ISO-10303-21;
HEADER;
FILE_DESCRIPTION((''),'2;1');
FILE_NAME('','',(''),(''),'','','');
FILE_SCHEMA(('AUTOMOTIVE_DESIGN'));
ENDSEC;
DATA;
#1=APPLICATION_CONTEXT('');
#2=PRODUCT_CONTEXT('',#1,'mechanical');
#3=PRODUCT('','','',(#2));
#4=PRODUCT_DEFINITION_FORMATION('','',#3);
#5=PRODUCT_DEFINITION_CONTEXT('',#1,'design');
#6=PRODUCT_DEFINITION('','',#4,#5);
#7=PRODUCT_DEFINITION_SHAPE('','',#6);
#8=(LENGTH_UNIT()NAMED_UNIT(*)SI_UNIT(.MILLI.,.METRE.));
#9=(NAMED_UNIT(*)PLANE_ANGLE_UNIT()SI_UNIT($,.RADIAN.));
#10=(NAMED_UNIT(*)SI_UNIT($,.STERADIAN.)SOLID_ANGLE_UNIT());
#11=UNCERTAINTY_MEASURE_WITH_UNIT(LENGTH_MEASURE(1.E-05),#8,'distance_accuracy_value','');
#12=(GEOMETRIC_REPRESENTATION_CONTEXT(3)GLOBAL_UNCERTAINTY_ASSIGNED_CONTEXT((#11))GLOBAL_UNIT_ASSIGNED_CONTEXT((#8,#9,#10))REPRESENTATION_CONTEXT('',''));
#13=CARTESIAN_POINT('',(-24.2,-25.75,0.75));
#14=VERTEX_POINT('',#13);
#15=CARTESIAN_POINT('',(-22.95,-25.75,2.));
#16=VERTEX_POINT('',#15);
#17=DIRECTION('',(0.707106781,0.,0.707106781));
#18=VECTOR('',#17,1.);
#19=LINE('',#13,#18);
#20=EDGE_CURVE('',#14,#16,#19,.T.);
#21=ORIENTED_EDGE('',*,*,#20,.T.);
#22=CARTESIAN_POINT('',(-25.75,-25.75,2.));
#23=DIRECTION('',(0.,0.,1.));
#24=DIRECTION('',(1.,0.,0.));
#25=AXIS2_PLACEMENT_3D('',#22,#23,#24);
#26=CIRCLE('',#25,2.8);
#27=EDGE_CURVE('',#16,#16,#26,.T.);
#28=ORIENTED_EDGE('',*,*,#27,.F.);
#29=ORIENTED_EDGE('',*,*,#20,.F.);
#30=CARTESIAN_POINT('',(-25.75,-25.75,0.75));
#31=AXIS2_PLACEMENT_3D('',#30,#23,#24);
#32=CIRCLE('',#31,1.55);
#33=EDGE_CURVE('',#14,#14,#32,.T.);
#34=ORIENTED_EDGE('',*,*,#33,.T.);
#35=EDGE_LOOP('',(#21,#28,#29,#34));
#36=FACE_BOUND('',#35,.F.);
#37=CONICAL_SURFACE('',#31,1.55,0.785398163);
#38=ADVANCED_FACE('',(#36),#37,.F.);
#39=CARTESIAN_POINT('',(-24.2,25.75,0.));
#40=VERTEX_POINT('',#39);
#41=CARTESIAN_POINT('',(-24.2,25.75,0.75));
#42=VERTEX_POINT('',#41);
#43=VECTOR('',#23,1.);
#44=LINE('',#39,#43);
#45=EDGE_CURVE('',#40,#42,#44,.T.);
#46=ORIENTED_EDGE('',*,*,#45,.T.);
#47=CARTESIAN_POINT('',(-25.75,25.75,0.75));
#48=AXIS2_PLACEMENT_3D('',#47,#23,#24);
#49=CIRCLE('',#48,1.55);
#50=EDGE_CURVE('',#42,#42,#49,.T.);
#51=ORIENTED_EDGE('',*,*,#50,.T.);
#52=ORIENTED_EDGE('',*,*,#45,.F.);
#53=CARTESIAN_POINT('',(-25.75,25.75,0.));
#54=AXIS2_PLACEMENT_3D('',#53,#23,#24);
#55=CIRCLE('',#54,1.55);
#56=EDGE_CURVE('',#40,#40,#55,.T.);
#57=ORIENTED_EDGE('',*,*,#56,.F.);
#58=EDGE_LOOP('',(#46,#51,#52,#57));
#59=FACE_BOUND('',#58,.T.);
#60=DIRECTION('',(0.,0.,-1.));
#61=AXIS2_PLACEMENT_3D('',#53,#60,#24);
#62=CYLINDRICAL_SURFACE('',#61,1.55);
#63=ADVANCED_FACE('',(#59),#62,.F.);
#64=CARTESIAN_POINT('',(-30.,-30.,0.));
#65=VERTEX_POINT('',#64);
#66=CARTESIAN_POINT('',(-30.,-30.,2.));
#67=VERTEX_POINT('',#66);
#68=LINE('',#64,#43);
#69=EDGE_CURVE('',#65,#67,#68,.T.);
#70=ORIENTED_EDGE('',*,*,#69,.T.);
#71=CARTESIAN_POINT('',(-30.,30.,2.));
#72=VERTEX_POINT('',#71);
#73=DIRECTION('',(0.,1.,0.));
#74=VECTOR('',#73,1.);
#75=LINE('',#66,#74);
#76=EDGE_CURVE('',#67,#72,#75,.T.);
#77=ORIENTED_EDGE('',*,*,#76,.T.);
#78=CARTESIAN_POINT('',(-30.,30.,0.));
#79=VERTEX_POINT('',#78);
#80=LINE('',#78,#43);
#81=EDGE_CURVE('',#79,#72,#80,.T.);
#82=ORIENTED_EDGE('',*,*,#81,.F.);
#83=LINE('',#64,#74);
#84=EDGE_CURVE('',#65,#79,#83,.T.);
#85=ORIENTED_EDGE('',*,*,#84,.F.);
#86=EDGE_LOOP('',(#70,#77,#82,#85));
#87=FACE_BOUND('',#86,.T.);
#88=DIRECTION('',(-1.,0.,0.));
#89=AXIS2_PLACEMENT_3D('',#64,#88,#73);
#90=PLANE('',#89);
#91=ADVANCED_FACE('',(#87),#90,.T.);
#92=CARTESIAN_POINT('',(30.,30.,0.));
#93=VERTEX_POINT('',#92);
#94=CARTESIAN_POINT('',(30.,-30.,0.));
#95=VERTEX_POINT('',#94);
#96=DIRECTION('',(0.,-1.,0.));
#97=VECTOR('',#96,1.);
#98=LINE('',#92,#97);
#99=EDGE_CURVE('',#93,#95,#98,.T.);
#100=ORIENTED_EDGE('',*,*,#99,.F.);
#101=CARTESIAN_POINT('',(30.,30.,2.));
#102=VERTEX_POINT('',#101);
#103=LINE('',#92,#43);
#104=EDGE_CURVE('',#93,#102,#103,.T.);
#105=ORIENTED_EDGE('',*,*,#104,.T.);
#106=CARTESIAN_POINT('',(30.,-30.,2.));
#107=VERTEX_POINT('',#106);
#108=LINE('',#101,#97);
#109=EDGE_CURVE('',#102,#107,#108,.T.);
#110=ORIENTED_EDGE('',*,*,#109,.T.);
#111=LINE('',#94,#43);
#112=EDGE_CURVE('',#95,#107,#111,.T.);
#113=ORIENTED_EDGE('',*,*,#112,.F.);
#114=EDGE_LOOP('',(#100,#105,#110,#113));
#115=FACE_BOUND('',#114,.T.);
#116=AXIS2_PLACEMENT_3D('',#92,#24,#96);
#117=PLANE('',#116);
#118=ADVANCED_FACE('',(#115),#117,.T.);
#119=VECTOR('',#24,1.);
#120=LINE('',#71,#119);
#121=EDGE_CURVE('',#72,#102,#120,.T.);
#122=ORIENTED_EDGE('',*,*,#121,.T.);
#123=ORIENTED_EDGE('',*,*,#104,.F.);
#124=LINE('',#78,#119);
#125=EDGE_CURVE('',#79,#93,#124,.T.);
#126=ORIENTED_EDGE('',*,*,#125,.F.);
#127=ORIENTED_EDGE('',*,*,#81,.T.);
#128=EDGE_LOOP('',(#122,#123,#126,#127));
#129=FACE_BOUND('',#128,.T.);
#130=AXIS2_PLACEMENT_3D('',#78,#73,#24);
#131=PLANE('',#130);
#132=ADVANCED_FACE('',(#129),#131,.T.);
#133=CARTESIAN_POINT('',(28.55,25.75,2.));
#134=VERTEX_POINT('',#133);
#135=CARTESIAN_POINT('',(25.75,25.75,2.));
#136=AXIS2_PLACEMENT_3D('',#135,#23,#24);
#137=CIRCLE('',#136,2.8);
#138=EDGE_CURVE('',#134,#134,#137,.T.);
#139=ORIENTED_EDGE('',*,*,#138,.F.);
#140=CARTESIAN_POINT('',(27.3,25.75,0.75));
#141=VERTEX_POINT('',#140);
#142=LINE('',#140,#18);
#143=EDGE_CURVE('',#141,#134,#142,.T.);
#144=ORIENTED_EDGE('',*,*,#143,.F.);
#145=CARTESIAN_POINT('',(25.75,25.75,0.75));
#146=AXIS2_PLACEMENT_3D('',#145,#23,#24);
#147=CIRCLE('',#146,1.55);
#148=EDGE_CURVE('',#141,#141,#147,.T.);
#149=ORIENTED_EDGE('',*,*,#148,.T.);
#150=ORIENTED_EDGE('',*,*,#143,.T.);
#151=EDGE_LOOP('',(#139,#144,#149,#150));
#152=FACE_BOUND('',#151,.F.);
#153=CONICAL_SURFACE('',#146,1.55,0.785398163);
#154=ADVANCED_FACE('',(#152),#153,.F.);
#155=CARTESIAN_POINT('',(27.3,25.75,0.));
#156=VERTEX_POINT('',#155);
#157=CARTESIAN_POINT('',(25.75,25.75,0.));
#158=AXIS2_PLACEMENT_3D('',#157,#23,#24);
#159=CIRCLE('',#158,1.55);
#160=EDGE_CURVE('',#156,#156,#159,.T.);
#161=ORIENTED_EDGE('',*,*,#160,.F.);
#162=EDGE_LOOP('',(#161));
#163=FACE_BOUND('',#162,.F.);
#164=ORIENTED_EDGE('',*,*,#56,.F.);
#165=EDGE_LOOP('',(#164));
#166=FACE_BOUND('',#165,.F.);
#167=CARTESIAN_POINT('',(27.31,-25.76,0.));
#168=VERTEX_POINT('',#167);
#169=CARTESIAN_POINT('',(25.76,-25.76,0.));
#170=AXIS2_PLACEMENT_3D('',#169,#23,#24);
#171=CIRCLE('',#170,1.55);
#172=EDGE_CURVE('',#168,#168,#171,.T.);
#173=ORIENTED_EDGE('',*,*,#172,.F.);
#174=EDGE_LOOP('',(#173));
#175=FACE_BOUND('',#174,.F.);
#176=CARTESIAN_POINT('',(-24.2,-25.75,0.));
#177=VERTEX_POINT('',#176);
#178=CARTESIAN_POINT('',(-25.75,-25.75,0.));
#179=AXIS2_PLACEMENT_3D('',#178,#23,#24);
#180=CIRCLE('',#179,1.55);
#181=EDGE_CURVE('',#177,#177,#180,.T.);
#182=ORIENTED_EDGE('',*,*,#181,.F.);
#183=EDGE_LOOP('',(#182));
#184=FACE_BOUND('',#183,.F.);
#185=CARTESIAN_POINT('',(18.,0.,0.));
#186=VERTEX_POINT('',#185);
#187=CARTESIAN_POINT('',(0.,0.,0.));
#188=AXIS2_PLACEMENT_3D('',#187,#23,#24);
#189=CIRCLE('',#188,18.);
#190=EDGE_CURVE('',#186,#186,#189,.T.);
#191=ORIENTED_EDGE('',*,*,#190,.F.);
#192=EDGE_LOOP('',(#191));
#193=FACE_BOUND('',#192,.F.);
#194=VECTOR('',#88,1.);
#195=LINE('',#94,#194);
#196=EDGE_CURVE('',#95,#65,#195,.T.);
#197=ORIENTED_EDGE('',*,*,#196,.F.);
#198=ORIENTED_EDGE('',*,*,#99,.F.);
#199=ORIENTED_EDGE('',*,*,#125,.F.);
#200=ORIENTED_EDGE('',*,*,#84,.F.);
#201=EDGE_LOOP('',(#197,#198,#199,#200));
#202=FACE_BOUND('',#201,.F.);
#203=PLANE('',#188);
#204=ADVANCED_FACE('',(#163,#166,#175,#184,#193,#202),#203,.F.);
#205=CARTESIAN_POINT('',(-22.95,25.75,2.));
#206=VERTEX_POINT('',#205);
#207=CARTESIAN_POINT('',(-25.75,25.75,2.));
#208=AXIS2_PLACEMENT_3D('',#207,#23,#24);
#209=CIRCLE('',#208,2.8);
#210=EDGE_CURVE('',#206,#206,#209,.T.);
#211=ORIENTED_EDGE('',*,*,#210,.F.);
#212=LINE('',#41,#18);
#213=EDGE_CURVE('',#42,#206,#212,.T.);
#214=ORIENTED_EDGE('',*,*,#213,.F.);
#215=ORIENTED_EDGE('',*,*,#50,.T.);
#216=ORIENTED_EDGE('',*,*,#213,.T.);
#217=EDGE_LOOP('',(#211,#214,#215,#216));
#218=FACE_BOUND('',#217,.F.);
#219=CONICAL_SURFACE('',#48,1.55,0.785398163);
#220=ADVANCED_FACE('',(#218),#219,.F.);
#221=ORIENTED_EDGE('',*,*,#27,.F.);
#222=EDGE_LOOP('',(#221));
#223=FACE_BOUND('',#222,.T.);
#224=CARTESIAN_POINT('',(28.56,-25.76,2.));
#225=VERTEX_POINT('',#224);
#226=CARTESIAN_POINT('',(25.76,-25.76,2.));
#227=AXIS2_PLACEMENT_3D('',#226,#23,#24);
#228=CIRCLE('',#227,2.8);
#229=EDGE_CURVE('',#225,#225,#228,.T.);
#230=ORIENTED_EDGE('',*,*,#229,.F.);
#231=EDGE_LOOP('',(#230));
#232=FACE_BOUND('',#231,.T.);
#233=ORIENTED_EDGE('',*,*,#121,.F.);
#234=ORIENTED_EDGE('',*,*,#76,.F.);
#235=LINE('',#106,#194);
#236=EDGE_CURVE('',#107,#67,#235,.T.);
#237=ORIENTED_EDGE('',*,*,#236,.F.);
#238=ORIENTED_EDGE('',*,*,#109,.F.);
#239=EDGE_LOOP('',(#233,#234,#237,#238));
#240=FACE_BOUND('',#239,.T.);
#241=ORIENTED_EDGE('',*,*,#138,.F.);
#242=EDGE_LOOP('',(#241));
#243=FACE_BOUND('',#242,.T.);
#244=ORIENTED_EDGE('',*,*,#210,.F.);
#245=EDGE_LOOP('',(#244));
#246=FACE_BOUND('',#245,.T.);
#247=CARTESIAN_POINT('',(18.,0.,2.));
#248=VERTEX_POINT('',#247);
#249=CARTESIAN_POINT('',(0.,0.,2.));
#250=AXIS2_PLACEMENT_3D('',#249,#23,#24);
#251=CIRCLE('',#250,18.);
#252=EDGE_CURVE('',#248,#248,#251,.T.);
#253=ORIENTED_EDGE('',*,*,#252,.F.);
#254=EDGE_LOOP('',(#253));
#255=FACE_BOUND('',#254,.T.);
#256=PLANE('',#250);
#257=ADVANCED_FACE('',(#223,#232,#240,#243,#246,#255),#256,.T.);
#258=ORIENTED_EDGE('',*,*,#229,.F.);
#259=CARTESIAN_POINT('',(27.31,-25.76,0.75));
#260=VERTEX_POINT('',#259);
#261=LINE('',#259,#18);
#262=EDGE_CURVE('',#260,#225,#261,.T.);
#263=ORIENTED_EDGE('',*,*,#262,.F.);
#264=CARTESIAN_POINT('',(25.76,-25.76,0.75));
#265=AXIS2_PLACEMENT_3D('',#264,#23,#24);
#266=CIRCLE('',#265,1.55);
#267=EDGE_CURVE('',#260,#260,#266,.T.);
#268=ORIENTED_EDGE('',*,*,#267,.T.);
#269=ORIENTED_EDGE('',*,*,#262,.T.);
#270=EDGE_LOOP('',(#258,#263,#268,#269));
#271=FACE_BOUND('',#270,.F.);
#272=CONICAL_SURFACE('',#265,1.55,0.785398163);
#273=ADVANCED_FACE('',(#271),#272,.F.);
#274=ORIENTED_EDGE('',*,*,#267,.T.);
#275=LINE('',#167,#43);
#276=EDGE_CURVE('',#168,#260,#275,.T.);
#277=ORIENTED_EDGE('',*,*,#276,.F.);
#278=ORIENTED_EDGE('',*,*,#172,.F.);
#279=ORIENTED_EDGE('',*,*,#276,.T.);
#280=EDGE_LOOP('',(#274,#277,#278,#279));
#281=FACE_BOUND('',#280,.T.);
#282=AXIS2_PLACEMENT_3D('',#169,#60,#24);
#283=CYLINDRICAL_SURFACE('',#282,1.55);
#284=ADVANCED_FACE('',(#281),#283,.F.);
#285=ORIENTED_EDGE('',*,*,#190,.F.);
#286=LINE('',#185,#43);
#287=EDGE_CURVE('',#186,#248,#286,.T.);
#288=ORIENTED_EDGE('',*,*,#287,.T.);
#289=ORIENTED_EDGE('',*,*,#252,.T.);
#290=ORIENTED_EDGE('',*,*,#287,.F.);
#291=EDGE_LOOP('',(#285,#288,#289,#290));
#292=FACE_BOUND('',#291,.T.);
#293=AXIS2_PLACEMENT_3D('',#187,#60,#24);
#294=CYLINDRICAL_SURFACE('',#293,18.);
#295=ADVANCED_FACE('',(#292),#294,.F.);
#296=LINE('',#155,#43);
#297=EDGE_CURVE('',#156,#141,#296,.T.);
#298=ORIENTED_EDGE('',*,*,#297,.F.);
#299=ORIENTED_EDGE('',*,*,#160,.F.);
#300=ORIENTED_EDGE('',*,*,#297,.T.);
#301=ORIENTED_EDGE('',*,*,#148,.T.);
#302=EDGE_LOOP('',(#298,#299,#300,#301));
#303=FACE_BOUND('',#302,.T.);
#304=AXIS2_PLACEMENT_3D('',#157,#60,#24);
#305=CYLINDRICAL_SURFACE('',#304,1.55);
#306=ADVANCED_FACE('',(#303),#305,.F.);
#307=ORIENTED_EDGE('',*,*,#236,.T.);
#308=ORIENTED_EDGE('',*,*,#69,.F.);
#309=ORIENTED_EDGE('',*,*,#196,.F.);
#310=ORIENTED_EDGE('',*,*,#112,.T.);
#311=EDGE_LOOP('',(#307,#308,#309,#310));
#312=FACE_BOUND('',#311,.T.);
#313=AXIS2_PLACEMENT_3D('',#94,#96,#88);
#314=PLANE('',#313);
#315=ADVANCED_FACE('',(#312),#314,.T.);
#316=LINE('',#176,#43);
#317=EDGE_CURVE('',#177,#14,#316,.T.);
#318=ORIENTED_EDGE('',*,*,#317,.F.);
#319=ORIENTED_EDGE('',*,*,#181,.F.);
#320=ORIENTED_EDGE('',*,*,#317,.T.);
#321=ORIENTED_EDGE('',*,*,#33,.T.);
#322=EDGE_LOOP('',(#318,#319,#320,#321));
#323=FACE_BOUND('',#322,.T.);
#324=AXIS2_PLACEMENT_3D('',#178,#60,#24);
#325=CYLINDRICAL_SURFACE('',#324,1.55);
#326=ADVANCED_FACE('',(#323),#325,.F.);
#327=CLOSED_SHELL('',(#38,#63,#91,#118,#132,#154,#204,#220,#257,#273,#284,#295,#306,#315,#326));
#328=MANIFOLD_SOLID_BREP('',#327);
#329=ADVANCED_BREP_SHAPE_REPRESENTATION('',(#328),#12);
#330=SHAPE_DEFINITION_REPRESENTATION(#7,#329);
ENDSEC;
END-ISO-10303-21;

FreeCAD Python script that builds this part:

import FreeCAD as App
import Part
import Sketcher

V = App.Vector
Q = App.Units.Quantity


def edges_at(feature, points):
    """Names of the edges that pass closest to the given points."""
    edges = feature.Shape.Edges
    near = lambda p: min(range(len(edges)), key=lambda i: edges[i].distToShape(Part.Vertex(*p))[0])
    return sorted({f"Edge{near(p) + 1}" for p in points})


def add_polygon(sketch, points):
    """Adds a closed chain of lines whose ends are joined by coincident constraints."""
    first, n = sketch.GeometryCount, len(points)
    for a, b in zip(points, points[1:] + points[:1]):
        sketch.addGeometry(Part.LineSegment(App.Vector(*a, 0), App.Vector(*b, 0)), False)
    for i in range(n):
        sketch.addConstraint(Sketcher.Constraint("Coincident", first + i, 2, first + (i + 1) % n, 1))

doc = App.newDocument("Part")
body = doc.addObject("PartDesign::Body", "Body")

sketch1 = body.newObject("Sketcher::SketchObject", "Sketch")
sketch1.AttachmentSupport = (doc.getObject("XY_Plane"), [""])
sketch1.MapMode = "FlatFace"
add_polygon(sketch1, [(30, 30), (-30, 30), (-30, -30), (30, -30)])
sketch1.addGeometry(Part.Circle(V(-25.8, -25.8, 0), V(0, 0, 1), 1.6), False)
sketch1.addGeometry(Part.Circle(V(25.8, -25.8, 0), V(0, 0, 1), 1.6), False)
sketch1.addGeometry(Part.Circle(V(-25.8, 25.8, 0), V(0, 0, 1), 1.6), False)
sketch1.addGeometry(Part.Circle(V(0, 0, 0), V(0, 0, 1), 18), False)
sketch1.addGeometry(Part.Circle(V(25.8, 25.8, 0), V(0, 0, 1), 1.6), False)
sketch1.addConstraint([
    Sketcher.Constraint("Horizontal", 0),
    Sketcher.Constraint("Vertical", 1),
    Sketcher.Constraint("Horizontal", 2),
    Sketcher.Constraint("Vertical", 3),
    Sketcher.Constraint("Coincident", 7, 3, -1, 1),
    Sketcher.Constraint("Equal", 4, 5),
    Sketcher.Constraint("Equal", 5, 6),
    Sketcher.Constraint("Equal", 6, 8),
    Sketcher.Constraint("Symmetric", 4, 3, 8, 3, -1, 1),
    Sketcher.Constraint("Symmetric", 0, 2, 2, 2, -1, 1),
    Sketcher.Constraint("Symmetric", 6, 3, 8, 3, -2),
    Sketcher.Constraint("Equal", 2, 1),
    Sketcher.Constraint("Diameter", 7, Q("36 mm")),
    Sketcher.Constraint("Diameter", 4, Q("3.1 mm")),
    Sketcher.Constraint("DistanceX", 0, 2, 0, 1, Q("60 mm")),
    Sketcher.Constraint("DistanceX", 0, 2, 6, 3, Q("4.25 mm")),
    Sketcher.Constraint("DistanceY", 6, 3, 0, 2, Q("4.25 mm")),
    Sketcher.Constraint("DistanceY", 1, 2, 5, 3, Q("4.24 mm")),
    Sketcher.Constraint("DistanceX", 5, 3, 2, 2, Q("4.24 mm")),
])
pad1 = body.newObject("PartDesign::Pad", "Pad")
pad1.Profile = sketch1
pad1.Length = 2
doc.recompute()

chamfer = body.newObject("PartDesign::Chamfer", "Chamfer")
chamfer.Base = (pad1, edges_at(pad1, [
    (-27.195, 26.311, 2),
    (24.305, 26.311, 2),
    (24.315, -25.2, 2),
    (-27.195, -25.189, 2),
]))
chamfer.Size = 1.25

doc.recompute()
